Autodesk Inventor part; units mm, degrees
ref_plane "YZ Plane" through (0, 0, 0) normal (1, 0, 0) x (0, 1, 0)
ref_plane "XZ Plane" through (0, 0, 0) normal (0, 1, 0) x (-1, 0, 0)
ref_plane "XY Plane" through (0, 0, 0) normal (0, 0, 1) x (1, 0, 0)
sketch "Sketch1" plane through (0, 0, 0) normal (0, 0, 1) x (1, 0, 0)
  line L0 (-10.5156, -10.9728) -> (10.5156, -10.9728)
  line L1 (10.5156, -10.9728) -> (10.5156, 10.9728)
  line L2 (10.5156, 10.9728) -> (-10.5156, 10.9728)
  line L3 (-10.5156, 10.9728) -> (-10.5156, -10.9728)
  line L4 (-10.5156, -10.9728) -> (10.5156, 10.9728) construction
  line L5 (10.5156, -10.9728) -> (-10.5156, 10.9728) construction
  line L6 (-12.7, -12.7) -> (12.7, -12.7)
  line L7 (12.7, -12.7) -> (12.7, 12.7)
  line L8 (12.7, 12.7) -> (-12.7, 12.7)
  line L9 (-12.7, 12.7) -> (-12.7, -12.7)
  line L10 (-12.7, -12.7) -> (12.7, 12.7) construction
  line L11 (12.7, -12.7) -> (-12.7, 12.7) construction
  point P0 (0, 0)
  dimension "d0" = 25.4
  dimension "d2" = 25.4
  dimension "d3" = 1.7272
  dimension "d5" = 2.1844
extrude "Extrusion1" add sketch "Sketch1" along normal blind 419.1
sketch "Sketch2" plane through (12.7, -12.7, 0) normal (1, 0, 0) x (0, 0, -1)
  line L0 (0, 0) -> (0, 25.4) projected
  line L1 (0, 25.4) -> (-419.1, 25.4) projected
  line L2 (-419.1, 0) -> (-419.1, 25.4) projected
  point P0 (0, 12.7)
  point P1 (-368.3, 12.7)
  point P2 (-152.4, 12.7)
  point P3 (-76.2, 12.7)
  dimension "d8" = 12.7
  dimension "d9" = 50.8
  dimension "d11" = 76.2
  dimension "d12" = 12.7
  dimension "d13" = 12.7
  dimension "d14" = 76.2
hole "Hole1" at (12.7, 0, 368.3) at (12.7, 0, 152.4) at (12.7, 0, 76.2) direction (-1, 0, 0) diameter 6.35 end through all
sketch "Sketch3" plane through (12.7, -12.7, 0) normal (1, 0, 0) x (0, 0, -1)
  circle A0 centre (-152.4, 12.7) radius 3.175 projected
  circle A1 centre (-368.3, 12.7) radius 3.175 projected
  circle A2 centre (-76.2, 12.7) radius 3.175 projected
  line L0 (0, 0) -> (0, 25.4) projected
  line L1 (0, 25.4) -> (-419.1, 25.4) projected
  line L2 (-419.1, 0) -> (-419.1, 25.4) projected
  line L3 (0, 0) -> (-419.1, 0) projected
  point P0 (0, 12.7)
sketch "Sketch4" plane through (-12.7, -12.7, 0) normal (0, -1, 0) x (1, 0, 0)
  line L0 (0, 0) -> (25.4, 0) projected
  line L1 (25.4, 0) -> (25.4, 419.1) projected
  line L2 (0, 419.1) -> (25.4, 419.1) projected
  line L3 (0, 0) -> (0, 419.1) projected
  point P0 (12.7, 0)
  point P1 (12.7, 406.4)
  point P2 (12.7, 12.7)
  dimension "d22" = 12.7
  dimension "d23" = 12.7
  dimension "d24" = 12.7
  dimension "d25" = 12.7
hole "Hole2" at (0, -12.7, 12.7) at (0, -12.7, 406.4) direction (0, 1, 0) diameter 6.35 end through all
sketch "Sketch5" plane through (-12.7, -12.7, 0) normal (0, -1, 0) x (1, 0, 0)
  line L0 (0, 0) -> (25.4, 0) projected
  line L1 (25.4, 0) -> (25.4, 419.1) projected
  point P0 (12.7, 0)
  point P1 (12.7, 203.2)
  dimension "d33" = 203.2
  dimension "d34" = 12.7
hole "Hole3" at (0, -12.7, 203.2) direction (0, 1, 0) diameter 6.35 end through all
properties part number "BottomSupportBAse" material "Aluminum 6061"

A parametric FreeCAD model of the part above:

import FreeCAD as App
import Part
import Sketcher

V = App.Vector
Q = App.Units.Quantity


def add_polygon(sketch, points):
    """Adds a closed chain of lines whose ends are joined by coincident constraints."""
    first, n = sketch.GeometryCount, len(points)
    for a, b in zip(points, points[1:] + points[:1]):
        sketch.addGeometry(Part.LineSegment(App.Vector(*a, 0), App.Vector(*b, 0)), False)
    for i in range(n):
        sketch.addConstraint(Sketcher.Constraint("Coincident", first + i, 2, first + (i + 1) % n, 1))

doc = App.newDocument("Part")
body = doc.addObject("PartDesign::Body", "Body")

# Sketch on XY plane
sketch1 = body.newObject("Sketcher::SketchObject", "Sketch")
sketch1.AttachmentSupport = (doc.getObject("XY_Plane"), [""])
sketch1.MapMode = "FlatFace"
add_polygon(sketch1, [(-12.7, 12.7), (-12.7, -12.7), (12.7, -12.7), (12.7, 12.7)])  # lines 0-3
add_polygon(sketch1, [(10.5156, -10.9728), (-10.5156, -10.9728), (-10.5156, 10.9728), (10.5156, 10.9728)])  # lines 4-7
sketch1.addConstraint(Sketcher.Constraint("Vertical", 0))
sketch1.addConstraint(Sketcher.Constraint("Horizontal", 1))
sketch1.addConstraint(Sketcher.Constraint("Vertical", 2))
sketch1.addConstraint(Sketcher.Constraint("Horizontal", 3))
sketch1.addConstraint(Sketcher.Constraint("Horizontal", 4))
sketch1.addConstraint(Sketcher.Constraint("Vertical", 5))
sketch1.addConstraint(Sketcher.Constraint("Horizontal", 6))
sketch1.addConstraint(Sketcher.Constraint("Vertical", 7))
sketch1.addConstraint(Sketcher.Constraint("Symmetric", 0, 2, 2, 2, -1, 1))
sketch1.addConstraint(Sketcher.Constraint("Symmetric", 4, 2, 6, 2, -1, 1))
sketch1.addConstraint(Sketcher.Constraint("Equal", 3, 0))
sketch1.addConstraint(Sketcher.Constraint("DistanceX", 1, 1, 1, 2, Q("1 in")))
sketch1.addConstraint(Sketcher.Constraint("DistanceX", 0, 2, 4, 2, Q("0.086 in")))
sketch1.addConstraint(Sketcher.Constraint("DistanceY", 0, 2, 4, 2, Q("0.068 in")))
pad1 = body.newObject("PartDesign::Pad", "Pad")
pad1.Profile = sketch1
pad1.Length = Q("16.5 in")

# Sketch on YZ plane
sketch2 = body.newObject("Sketcher::SketchObject", "Sketch001")
sketch2.AttachmentSupport = (doc.getObject("YZ_Plane"), [""])
sketch2.MapMode = "FlatFace"
sketch2.AttachmentOffset = App.Placement(V(0, 0, 0.5 * 25.4), App.Rotation())
sketch2.addGeometry(Part.Circle(V(0, 368.3, 0), V(0, 0, 1), 3.175), False)
sketch2.addGeometry(Part.Circle(V(0, 152.4, 0), V(0, 0, 1), 3.175), False)
sketch2.addGeometry(Part.Circle(V(0, 76.2, 0), V(0, 0, 1), 3.175), False)
sketch2.addConstraint(Sketcher.Constraint("Equal", 0, 1))
sketch2.addConstraint(Sketcher.Constraint("Equal", 1, 2))
sketch2.addConstraint(Sketcher.Constraint("PointOnObject", 0, 3, -2))
sketch2.addConstraint(Sketcher.Constraint("PointOnObject", 1, 3, -2))
sketch2.addConstraint(Sketcher.Constraint("PointOnObject", 2, 3, -2))
sketch2.addConstraint(Sketcher.Constraint("Diameter", 0, Q("0.25 in")))
sketch2.addConstraint(Sketcher.Constraint("DistanceY", -1, 1, 1, 3, Q("6 in")))
sketch2.addConstraint(Sketcher.Constraint("DistanceY", -1, 1, 2, 3, Q("3 in")))
sketch2.addConstraint(Sketcher.Constraint("DistanceY", -1, 1, 0, 3, Q("14.5 in")))
doc.recompute()
hole = body.newObject("PartDesign::Hole", "Hole")
hole.Profile = sketch2
hole.ThreadType = "None"
hole.Diameter = Q("0.25 in")
hole.DepthType = "ThroughAll"

# Sketch on XZ plane
sketch3 = body.newObject("Sketcher::SketchObject", "Sketch002")
sketch3.AttachmentSupport = (doc.getObject("XZ_Plane"), [""])
sketch3.MapMode = "FlatFace"
sketch3.AttachmentOffset = App.Placement(V(0, 0, 0.5 * 25.4), App.Rotation())
sketch3.addGeometry(Part.Circle(V(0, 12.7, 0), V(0, 0, 1), 3.175), False)
sketch3.addGeometry(Part.Circle(V(0, 406.4, 0), V(0, 0, 1), 3.175), False)
sketch3.addConstraint(Sketcher.Constraint("Equal", 0, 1))
sketch3.addConstraint(Sketcher.Constraint("PointOnObject", 0, 3, -2))
sketch3.addConstraint(Sketcher.Constraint("PointOnObject", 1, 3, -2))
sketch3.addConstraint(Sketcher.Constraint("Diameter", 0, Q("0.25 in")))
sketch3.addConstraint(Sketcher.Constraint("DistanceY", -1, 1, 1, 3, Q("16 in")))
sketch3.addConstraint(Sketcher.Constraint("DistanceY", -1, 1, 0, 3, Q("0.5 in")))
doc.recompute()
hole2 = body.newObject("PartDesign::Hole", "Hole001")
hole2.Profile = sketch3
hole2.ThreadType = "None"
hole2.Diameter = Q("0.25 in")
hole2.DepthType = "ThroughAll"

# Sketch on XZ plane
sketch4 = body.newObject("Sketcher::SketchObject", "Sketch003")
sketch4.AttachmentSupport = (doc.getObject("XZ_Plane"), [""])
sketch4.MapMode = "FlatFace"
sketch4.AttachmentOffset = App.Placement(V(0, 0, 0.5 * 25.4), App.Rotation())
sketch4.addGeometry(Part.Circle(V(0, 203.2, 0), V(0, 0, 1), 3.175), False)
sketch4.addConstraint(Sketcher.Constraint("PointOnObject", 0, 3, -2))
sketch4.addConstraint(Sketcher.Constraint("Diameter", 0, Q("0.25 in")))
sketch4.addConstraint(Sketcher.Constraint("DistanceY", -1, 1, 0, 3, Q("8 in")))
doc.recompute()
hole3 = body.newObject("PartDesign::Hole", "Hole002")
hole3.Profile = sketch4
hole3.ThreadType = "None"
hole3.Diameter = Q("0.25 in")
hole3.DepthType = "ThroughAll"

doc.recompute()
